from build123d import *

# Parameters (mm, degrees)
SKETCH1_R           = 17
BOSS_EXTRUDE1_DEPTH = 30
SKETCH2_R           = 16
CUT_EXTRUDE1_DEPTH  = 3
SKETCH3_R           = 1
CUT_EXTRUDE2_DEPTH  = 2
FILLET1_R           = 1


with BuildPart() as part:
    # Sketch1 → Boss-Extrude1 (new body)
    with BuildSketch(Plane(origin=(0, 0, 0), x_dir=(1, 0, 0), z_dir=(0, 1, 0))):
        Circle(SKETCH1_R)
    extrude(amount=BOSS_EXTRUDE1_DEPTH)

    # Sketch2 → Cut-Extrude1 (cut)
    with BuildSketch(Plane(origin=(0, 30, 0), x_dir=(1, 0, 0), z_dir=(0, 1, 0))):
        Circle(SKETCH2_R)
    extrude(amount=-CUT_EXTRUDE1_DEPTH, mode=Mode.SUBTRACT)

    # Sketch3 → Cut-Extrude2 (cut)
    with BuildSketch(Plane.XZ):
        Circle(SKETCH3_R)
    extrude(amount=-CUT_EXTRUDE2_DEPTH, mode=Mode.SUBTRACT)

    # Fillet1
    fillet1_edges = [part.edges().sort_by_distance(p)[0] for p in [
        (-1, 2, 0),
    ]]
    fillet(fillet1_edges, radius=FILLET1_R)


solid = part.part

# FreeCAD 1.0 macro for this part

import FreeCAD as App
import Part
import Sketcher


def edges_at(feature, points):
    """Names of the edges that pass closest to the given points."""
    edges = feature.Shape.Edges
    near = lambda p: min(range(len(edges)), key=lambda i: edges[i].distToShape(Part.Vertex(*p))[0])
    return sorted({f"Edge{near(p) + 1}" for p in points})

doc = App.newDocument("Part")
params = doc.addObject("Spreadsheet::Sheet", "Params")
for row, (alias, value) in enumerate([
    ("sketch1_diameter", "34 mm"),
    ("pad1_length", "30 mm"),
    ("sketch2_diameter", "32 mm"),
    ("pocket1_length", "3 mm"),
    ("sketch3_diameter", "2 mm"),
    ("pocket2_length", "2 mm"),
    ("fillet_radius", "1 mm"),
], start=1):
    params.set(f"A{row}", alias)
    params.set(f"B{row}", "=" + value)
    params.setAlias(f"B{row}", alias)

body = doc.addObject("PartDesign::Body", "Body")

# Sketch on XZ plane
sketch1 = doc.addObject("Sketcher::SketchObject", "Sketch")
body.addObject(sketch1)
sketch1.AttachmentSupport = (doc.XZ_Plane, [""])
sketch1.MapMode = "FlatFace"
sketch1.addGeometry(Part.Circle(App.Vector(0, 0, 0), App.Vector(0, 0, 1), 17), False)
sketch1.addConstraint(Sketcher.Constraint("Coincident", 0, 3, -1, 1))
sketch1.addConstraint(Sketcher.Constraint("Diameter", 0, 34.0))
sketch1.setExpression("Constraints[1]", "Params.sketch1_diameter")
pad1 = doc.addObject("PartDesign::Pad", "Pad")
body.addObject(pad1)
pad1.Profile = sketch1
pad1.setExpression("Length", "Params.pad1_length")
pad1.Reversed = True

# Sketch on XZ plane
sketch2 = doc.addObject("Sketcher::SketchObject", "Sketch001")
body.addObject(sketch2)
sketch2.AttachmentSupport = (doc.XZ_Plane, [""])
sketch2.MapMode = "FlatFace"
sketch2.AttachmentOffset = App.Placement(App.Vector(0, 0, -30), App.Rotation())
sketch2.addGeometry(Part.Circle(App.Vector(0, 0, 0), App.Vector(0, 0, 1), 16), False)
sketch2.addConstraint(Sketcher.Constraint("Coincident", 0, 3, -1, 1))
sketch2.addConstraint(Sketcher.Constraint("Diameter", 0, 32.0))
sketch2.setExpression("Constraints[1]", "Params.sketch2_diameter")
pocket1 = doc.addObject("PartDesign::Pocket", "Pocket")
body.addObject(pocket1)
pocket1.Profile = sketch2
pocket1.setExpression("Length", "Params.pocket1_length")
pocket1.Reversed = True

# Sketch on XZ plane
sketch3 = doc.addObject("Sketcher::SketchObject", "Sketch002")
body.addObject(sketch3)
sketch3.AttachmentSupport = (doc.XZ_Plane, [""])
sketch3.MapMode = "FlatFace"
sketch3.addGeometry(Part.Circle(App.Vector(0, 0, 0), App.Vector(0, 0, 1), 1), False)
sketch3.addConstraint(Sketcher.Constraint("Coincident", 0, 3, -1, 1))
sketch3.addConstraint(Sketcher.Constraint("Diameter", 0, 2.0))
sketch3.setExpression("Constraints[1]", "Params.sketch3_diameter")
pocket2 = doc.addObject("PartDesign::Pocket", "Pocket001")
body.addObject(pocket2)
pocket2.Profile = sketch3
pocket2.setExpression("Length", "Params.pocket2_length")
doc.recompute()

fillet = doc.addObject("PartDesign::Fillet", "Fillet")
body.addObject(fillet)
fillet.Base = (pocket2, edges_at(pocket2, [(-1, 2, 0)]))
fillet.setExpression("Radius", "Params.fillet_radius")

doc.recompute()
